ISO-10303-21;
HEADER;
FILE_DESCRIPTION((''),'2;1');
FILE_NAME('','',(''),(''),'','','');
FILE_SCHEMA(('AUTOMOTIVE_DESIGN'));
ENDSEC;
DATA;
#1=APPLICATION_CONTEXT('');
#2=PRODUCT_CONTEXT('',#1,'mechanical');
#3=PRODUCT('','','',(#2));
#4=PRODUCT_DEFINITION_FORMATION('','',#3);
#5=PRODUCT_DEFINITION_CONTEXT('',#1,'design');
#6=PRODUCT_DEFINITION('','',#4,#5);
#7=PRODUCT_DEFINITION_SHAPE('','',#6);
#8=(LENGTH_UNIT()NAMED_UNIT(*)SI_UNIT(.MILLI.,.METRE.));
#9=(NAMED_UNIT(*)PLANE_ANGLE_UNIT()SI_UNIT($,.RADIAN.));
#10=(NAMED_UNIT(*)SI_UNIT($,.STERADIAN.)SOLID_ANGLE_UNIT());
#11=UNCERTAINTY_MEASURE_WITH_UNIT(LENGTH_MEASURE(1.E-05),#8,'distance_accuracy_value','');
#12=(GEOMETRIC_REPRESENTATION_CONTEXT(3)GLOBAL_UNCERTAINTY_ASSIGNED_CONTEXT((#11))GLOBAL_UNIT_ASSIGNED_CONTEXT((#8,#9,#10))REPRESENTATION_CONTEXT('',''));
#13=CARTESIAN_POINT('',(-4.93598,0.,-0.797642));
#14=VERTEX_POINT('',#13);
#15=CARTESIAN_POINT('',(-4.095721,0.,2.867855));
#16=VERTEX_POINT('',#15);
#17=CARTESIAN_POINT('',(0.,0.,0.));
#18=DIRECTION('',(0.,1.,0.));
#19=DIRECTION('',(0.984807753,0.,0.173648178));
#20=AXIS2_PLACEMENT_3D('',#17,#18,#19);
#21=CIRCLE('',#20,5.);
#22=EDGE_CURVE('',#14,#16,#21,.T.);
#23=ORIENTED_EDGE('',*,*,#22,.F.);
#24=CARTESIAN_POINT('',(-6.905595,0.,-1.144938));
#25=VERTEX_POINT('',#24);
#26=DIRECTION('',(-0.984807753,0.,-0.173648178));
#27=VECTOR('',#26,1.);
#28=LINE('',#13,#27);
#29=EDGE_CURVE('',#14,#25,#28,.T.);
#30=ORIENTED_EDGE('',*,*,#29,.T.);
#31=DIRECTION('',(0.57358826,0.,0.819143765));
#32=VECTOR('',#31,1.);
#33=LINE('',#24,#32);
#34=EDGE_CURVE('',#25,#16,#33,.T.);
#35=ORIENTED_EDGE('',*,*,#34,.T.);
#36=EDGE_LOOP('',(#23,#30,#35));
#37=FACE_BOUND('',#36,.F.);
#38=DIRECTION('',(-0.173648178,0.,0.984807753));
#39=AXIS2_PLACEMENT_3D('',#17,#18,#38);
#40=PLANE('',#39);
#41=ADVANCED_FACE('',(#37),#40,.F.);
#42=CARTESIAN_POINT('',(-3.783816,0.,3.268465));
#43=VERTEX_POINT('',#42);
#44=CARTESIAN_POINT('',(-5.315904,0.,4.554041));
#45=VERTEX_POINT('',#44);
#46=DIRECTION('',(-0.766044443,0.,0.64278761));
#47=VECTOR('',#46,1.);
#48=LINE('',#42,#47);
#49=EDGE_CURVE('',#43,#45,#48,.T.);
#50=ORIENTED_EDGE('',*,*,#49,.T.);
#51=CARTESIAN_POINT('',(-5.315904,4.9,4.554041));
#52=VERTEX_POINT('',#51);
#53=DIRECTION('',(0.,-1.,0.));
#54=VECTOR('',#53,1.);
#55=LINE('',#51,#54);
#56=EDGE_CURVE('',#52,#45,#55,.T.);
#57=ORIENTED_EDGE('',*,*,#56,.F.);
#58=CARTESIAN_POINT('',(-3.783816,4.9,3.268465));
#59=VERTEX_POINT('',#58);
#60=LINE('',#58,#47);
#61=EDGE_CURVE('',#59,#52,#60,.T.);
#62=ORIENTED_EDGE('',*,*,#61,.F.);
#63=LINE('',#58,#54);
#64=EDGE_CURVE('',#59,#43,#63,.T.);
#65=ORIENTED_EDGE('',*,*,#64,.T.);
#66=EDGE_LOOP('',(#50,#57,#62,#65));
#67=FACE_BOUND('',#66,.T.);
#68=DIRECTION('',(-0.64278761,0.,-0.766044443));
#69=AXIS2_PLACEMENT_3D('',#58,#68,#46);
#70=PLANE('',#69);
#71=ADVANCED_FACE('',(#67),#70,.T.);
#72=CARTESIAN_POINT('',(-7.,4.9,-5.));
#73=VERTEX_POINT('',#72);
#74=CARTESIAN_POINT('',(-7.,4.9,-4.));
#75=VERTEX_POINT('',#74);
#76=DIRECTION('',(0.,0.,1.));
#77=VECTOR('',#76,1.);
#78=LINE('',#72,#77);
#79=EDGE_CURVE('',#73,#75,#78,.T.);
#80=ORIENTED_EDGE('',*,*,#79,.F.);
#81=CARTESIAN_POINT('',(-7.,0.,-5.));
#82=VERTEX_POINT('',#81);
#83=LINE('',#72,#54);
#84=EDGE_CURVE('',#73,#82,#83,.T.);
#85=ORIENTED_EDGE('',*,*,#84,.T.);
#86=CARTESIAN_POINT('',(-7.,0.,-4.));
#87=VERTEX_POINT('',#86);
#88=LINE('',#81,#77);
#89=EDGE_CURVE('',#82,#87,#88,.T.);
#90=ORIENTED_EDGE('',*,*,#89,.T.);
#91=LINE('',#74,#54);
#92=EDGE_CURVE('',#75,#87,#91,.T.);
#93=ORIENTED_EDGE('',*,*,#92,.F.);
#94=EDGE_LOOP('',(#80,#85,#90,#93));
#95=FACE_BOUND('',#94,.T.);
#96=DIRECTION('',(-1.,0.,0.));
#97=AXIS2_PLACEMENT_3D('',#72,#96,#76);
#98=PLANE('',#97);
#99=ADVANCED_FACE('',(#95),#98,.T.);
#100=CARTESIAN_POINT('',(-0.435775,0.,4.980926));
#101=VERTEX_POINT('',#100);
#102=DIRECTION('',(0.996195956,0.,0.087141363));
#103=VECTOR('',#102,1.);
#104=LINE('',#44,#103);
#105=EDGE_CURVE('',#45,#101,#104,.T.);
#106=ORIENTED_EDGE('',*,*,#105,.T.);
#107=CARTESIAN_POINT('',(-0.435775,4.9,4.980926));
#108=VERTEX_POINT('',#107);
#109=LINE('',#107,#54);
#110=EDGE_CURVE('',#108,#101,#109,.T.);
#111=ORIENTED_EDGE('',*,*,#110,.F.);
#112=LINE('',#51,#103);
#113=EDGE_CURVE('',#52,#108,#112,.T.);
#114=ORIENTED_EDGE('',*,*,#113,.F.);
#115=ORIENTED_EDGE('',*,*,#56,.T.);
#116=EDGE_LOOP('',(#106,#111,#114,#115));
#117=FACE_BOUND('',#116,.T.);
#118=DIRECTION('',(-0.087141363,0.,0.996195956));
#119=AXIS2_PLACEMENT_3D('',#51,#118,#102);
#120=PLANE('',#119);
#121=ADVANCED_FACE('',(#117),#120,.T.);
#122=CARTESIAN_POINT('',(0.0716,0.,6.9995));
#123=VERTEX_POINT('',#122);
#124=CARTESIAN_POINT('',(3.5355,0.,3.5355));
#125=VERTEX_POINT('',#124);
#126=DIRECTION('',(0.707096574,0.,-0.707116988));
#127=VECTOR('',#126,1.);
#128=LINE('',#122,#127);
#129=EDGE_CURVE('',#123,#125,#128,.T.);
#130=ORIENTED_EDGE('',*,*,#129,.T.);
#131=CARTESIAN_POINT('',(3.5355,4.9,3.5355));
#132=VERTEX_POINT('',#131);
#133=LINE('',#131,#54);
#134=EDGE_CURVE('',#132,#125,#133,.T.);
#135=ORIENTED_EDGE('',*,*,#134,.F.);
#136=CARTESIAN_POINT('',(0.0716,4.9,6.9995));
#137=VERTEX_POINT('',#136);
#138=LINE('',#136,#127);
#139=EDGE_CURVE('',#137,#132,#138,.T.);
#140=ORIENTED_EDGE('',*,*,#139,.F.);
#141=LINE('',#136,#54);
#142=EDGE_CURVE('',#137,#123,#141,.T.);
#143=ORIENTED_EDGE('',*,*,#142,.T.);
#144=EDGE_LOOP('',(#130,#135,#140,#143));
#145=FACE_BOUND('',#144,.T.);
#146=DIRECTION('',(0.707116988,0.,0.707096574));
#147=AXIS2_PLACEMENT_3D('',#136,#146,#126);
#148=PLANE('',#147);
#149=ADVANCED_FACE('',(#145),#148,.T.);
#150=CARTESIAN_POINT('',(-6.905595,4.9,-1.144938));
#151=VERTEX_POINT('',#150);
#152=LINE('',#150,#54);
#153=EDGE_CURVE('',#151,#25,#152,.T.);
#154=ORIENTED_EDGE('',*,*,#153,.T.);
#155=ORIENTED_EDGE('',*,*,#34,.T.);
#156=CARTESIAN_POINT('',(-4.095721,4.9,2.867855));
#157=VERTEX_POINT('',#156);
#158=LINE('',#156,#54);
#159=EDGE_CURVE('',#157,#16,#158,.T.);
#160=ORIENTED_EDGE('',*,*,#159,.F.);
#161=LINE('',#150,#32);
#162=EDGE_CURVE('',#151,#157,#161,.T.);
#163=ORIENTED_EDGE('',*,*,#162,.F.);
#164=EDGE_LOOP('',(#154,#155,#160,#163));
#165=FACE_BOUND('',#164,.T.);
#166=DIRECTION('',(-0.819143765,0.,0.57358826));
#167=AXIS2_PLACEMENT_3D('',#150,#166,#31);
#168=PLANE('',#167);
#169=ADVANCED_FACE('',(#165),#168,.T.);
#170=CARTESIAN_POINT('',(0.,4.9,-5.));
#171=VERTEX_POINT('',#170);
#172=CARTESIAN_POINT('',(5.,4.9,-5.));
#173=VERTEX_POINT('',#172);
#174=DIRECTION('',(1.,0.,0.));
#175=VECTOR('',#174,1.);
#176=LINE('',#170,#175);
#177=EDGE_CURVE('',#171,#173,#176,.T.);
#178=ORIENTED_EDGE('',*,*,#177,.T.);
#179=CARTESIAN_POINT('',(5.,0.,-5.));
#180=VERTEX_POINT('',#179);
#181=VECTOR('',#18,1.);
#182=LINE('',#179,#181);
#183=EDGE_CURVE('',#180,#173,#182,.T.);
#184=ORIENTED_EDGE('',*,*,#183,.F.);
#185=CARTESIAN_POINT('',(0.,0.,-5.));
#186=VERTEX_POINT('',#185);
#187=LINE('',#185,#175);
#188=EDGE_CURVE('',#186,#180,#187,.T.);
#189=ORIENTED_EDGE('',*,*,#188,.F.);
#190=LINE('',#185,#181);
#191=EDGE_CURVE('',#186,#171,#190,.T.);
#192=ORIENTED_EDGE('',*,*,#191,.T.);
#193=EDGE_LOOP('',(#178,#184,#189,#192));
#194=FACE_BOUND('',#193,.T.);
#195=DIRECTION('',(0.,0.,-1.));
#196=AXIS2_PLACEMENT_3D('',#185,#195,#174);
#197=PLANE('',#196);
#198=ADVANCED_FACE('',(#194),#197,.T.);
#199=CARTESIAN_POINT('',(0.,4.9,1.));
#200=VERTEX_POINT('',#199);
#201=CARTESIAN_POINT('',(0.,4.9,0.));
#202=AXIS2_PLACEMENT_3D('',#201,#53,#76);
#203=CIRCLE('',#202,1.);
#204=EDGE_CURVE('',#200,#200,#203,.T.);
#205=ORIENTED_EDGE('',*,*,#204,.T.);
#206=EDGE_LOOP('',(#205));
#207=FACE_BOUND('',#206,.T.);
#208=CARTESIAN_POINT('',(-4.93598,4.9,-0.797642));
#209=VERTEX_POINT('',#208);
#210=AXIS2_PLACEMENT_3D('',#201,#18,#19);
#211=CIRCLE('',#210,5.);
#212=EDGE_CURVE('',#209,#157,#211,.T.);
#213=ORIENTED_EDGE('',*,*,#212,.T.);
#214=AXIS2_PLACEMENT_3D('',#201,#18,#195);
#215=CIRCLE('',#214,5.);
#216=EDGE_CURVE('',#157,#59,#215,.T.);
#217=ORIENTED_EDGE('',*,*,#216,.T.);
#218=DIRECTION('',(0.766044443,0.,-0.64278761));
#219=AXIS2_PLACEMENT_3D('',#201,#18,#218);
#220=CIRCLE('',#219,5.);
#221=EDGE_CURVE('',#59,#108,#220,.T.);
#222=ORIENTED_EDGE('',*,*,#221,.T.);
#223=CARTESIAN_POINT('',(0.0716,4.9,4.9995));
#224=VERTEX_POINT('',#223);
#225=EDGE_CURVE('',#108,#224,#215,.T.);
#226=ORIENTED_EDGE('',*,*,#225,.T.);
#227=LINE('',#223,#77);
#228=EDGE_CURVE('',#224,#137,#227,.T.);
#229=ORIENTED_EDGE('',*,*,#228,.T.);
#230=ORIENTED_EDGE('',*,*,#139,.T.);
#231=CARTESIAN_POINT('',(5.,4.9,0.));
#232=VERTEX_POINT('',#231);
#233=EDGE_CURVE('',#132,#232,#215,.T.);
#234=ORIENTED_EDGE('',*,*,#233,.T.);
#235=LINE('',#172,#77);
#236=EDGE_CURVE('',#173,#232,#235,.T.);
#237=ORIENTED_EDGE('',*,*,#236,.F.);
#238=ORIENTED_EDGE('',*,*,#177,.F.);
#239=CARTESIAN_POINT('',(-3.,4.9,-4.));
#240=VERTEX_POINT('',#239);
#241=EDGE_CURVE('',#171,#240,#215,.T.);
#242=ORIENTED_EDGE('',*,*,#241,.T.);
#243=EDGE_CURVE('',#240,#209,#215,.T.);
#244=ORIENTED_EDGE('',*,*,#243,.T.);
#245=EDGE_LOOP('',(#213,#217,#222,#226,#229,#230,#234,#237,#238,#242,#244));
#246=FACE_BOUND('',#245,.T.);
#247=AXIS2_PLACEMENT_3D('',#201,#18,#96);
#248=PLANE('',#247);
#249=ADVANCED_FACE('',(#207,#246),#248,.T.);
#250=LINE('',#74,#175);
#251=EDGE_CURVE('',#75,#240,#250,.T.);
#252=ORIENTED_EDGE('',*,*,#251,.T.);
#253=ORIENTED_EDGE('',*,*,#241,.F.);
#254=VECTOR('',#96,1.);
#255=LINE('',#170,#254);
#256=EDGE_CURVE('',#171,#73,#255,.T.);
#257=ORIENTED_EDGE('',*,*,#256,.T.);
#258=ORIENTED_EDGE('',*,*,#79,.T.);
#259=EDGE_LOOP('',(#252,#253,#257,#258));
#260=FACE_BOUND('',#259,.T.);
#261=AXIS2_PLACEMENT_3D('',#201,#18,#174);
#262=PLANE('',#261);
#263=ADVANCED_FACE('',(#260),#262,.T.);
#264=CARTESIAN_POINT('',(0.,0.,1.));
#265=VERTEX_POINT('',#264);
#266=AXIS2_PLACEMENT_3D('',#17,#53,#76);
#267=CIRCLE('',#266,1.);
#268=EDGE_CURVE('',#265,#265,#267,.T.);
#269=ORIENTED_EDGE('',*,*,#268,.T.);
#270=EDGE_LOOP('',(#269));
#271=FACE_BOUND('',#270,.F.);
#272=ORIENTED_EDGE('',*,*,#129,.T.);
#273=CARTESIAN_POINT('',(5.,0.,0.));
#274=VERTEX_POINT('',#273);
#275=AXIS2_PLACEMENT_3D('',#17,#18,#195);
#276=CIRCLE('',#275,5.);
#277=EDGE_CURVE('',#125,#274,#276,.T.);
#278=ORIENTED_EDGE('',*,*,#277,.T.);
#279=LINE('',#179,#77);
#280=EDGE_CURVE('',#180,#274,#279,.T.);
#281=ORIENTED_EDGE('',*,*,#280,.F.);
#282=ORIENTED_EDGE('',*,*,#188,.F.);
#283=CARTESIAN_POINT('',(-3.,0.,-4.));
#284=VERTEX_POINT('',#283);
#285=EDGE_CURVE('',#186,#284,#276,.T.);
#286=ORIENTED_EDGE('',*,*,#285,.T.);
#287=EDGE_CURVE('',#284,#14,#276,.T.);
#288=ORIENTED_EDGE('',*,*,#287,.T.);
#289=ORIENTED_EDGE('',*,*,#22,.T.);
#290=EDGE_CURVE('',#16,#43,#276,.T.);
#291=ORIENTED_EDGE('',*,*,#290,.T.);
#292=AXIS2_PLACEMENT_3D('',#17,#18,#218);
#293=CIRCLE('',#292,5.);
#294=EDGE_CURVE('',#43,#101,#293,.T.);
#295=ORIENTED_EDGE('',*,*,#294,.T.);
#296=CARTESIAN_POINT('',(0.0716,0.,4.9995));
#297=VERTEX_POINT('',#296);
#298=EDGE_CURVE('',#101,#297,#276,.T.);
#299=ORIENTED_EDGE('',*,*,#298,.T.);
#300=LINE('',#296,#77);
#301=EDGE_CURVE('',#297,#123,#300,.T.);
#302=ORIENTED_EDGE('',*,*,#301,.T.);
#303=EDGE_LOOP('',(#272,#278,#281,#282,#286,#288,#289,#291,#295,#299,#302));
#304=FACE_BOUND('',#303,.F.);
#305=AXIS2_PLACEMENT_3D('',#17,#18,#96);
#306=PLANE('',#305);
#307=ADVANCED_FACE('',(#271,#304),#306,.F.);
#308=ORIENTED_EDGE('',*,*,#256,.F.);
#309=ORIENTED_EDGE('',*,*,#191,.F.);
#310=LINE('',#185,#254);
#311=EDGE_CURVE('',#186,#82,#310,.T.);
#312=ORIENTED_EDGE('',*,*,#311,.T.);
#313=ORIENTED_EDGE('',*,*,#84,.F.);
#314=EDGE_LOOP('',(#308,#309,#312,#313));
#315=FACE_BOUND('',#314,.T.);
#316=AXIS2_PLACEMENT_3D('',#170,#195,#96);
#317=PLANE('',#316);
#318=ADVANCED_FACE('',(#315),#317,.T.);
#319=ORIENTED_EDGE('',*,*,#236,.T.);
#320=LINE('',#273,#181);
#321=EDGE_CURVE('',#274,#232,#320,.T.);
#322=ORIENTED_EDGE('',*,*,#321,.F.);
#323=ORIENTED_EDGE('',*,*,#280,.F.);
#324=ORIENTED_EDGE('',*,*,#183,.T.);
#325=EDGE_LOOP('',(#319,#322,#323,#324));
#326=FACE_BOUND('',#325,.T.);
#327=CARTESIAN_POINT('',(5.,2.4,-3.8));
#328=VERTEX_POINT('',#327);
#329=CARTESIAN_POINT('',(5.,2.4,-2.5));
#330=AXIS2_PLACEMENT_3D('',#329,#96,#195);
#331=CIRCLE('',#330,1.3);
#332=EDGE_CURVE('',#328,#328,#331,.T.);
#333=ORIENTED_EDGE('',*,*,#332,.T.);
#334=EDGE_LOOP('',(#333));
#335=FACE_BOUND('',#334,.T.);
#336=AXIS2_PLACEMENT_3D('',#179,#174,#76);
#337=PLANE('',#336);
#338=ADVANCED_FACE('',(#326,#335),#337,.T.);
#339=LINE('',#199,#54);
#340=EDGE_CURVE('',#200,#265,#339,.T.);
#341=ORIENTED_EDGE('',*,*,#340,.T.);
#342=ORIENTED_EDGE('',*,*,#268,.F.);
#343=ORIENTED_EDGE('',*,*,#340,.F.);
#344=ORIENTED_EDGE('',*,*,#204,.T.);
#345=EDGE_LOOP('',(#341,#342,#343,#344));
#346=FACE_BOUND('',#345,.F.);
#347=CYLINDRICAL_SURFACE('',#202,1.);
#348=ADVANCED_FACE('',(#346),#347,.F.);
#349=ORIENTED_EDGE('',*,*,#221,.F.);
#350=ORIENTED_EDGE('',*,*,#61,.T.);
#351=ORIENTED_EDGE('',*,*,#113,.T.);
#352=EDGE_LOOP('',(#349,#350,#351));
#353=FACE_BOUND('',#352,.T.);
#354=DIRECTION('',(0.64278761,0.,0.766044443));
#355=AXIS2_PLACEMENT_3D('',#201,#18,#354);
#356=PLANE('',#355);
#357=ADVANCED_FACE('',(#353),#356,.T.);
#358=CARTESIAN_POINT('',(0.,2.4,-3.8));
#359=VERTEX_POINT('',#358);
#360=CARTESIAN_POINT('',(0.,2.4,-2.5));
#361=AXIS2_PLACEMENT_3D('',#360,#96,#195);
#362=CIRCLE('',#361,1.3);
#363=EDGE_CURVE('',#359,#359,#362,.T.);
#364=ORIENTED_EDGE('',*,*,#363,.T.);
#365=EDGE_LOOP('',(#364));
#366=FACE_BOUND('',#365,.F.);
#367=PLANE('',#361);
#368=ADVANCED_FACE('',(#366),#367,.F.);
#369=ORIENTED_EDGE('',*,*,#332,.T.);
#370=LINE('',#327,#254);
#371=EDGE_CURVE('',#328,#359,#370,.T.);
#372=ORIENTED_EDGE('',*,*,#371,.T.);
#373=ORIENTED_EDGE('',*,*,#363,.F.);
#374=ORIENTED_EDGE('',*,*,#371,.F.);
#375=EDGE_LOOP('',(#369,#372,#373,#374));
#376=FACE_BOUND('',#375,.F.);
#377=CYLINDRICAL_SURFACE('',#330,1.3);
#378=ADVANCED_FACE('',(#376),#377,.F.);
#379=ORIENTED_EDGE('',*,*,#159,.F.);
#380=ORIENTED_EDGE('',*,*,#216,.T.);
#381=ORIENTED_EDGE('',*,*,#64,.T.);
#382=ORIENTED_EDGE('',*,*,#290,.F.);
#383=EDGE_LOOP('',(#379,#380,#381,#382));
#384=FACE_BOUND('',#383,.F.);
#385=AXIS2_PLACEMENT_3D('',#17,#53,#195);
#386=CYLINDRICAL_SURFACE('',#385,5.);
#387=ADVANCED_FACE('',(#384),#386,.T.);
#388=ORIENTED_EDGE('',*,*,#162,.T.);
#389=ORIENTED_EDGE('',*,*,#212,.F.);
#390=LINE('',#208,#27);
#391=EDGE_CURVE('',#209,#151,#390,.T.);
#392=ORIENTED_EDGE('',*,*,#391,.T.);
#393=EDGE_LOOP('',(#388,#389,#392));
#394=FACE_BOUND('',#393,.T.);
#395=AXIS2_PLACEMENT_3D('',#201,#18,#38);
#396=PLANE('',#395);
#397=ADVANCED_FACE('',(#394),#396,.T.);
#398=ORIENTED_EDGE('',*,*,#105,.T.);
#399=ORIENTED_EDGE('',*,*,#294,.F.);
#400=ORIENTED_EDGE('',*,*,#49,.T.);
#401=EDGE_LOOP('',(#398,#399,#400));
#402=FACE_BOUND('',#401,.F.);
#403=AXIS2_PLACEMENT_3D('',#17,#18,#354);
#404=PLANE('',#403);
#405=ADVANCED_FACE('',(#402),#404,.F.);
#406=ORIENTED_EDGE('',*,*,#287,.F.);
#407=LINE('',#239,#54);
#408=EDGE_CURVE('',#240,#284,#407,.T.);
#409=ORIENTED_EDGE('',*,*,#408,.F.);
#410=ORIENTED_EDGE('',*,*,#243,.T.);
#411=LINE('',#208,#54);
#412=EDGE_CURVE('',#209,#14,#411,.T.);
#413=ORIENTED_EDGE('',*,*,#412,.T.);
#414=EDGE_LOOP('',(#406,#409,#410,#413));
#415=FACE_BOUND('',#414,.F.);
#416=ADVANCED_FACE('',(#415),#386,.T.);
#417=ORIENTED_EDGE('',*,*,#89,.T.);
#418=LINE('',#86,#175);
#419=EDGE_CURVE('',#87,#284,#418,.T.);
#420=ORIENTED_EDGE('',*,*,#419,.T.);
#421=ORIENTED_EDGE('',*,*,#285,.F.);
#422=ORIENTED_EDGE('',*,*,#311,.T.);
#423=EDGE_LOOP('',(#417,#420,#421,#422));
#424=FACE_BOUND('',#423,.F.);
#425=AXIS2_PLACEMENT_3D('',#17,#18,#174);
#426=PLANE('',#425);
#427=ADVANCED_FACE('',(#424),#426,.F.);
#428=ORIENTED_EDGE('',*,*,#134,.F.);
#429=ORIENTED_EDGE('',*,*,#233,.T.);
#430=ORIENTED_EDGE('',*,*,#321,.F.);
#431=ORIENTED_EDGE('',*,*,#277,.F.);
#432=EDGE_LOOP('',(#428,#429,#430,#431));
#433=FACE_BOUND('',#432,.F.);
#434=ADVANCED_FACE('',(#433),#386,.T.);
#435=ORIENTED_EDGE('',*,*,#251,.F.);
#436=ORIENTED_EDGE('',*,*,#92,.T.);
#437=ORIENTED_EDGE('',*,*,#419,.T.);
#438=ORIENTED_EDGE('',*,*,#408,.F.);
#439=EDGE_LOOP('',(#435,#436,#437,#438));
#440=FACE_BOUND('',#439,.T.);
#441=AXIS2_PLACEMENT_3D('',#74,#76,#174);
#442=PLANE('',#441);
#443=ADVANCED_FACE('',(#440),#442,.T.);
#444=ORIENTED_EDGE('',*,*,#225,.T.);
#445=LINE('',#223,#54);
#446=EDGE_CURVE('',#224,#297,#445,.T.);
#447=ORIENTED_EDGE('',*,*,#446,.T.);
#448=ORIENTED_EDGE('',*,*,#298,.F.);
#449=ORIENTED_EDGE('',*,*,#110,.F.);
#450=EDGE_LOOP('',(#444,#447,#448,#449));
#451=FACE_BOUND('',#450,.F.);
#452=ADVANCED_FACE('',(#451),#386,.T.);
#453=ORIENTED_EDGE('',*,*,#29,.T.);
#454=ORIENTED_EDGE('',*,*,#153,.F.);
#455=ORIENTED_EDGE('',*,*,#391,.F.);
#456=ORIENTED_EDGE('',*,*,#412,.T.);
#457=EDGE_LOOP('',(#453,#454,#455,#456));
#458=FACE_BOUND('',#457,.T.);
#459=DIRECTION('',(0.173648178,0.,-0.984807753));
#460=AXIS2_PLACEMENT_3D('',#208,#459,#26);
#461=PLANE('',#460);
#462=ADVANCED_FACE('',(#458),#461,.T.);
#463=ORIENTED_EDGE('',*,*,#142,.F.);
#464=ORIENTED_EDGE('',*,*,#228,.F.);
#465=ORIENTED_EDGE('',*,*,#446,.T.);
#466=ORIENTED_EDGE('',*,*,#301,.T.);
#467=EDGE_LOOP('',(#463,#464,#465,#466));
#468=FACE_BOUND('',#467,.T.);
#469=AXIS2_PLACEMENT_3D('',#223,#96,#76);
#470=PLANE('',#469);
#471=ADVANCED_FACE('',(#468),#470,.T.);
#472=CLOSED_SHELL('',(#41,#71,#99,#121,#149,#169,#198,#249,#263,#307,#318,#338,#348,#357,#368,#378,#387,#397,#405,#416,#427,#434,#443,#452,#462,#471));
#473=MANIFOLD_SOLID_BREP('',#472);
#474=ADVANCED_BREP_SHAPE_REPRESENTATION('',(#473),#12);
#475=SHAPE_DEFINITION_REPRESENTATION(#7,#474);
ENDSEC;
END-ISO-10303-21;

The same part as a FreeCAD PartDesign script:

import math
import FreeCAD as App
import Part
import Sketcher
from FreeCAD import Vector
Q = App.Units.Quantity

doc = App.newDocument("Part")
body = doc.addObject("PartDesign::Body", "Body")

sketch1 = body.newObject("Sketcher::SketchObject", "Sketch")
sketch1.AttachmentSupport = (doc.getObject("XZ_Plane"), [""])
sketch1.MapMode = "FlatFace"
sketch1.addGeometry([
    Part.LineSegment(Vector(5, -5, 0), Vector(0, -5, 0)),
    Part.ArcOfCircle(Part.Circle(Vector(0, 0, 0), Vector(0, 0, 1), 5), math.radians(0), math.radians(270)),
    Part.LineSegment(Vector(5, 0, 0), Vector(5, -5, 0)),
], False)
sketch1.addConstraint([
    Sketcher.Constraint("Tangent", 0, 2, 1, 2),
    Sketcher.Constraint("Tangent", 1, 1, 2, 1),
    Sketcher.Constraint("Coincident", 2, 2, 0, 1),
    Sketcher.Constraint("Horizontal", 0),
    Sketcher.Constraint("Vertical", 2),
    Sketcher.Constraint("Coincident", 1, 3, -1, 1),
    Sketcher.Constraint("Radius", 1, 5.0),
])
pad1 = body.newObject("PartDesign::Pad", "Pad")
pad1.Profile = sketch1
pad1.Length = 4.9
pad1.Reversed = True

sketch2 = body.newObject("Sketcher::SketchObject", "Sketch001")
sketch2.AttachmentSupport = (doc.getObject("XZ_Plane"), [""])
sketch2.MapMode = "FlatFace"
sketch2.AttachmentOffset = App.Placement(Vector(0, 0, -4.9), App.Rotation())
sketch2.addGeometry([
    Part.ArcOfCircle(Part.Circle(Vector(0, 0, 0), Vector(0, 0, 1), 5), math.radians(45), math.radians(89.179498)),
    Part.LineSegment(Vector(0.0716, 4.9995, 0), Vector(0.0716, 6.9995, 0)),
    Part.LineSegment(Vector(0.0716, 6.9995, 0), Vector(3.5355, 3.5355, 0)),
], False)
sketch2.addConstraint([
    Sketcher.Constraint("Coincident", 0, 2, 1, 1),
    Sketcher.Constraint("Coincident", 1, 2, 2, 1),
    Sketcher.Constraint("Tangent", 2, 2, 0, 1),
    Sketcher.Constraint("Vertical", 1),
    Sketcher.Constraint("Coincident", 0, 3, -1, 1),
    Sketcher.Constraint("DistanceY", 1, 1, 1, 2, 2.0),
    Sketcher.Constraint("Radius", 0, 5.0),
    Sketcher.Constraint("Angle", 2, Q("-45.0008 deg")),
])
pad2 = body.newObject("PartDesign::Pad", "Pad001")
pad2.Profile = sketch2
pad2.Length = 4.9
doc.recompute()

polarpattern = body.newObject("PartDesign::PolarPattern", "PolarPattern")
polarpattern.Originals = [pad2]
polarpattern.Axis = (doc.getObject("Y_Axis"), [""])
polarpattern.Angle = 100
polarpattern.Occurrences = 3
polarpattern.Reversed = True
body.Tip = polarpattern

sketch3 = body.newObject("Sketcher::SketchObject", "Sketch002")
sketch3.AttachmentSupport = (doc.getObject("XZ_Plane"), [""])
sketch3.MapMode = "FlatFace"
sketch3.AttachmentOffset = App.Placement(Vector(0, 0, -4.9), App.Rotation())
sketch3.addGeometry(Part.Circle(Vector(0, 0, 0), Vector(0, 0, 1), 1), False)
sketch3.addConstraint([
    Sketcher.Constraint("Coincident", 0, 3, -1, 1),
    Sketcher.Constraint("Diameter", 0, 2.0),
])
doc.recompute()
hole = body.newObject("PartDesign::Hole", "Hole")
hole.Profile = sketch3
hole.ThreadType = "None"
hole.Diameter = 2
hole.DepthType = "ThroughAll"
hole.Reversed = True

sketch4 = body.newObject("Sketcher::SketchObject", "Sketch003")
sketch4.AttachmentSupport = (doc.getObject("YZ_Plane"), [""])
sketch4.MapMode = "FlatFace"
sketch4.AttachmentOffset = App.Placement(Vector(0, 0, 5), App.Rotation())
sketch4.addGeometry(Part.Circle(Vector(2.4, -2.5, 0), Vector(0, 0, 1), 1.3), False)
sketch4.addConstraint([
    Sketcher.Constraint("Diameter", 0, 2.6),
    Sketcher.Constraint("DistanceX", -1, 1, 0, 3, 2.4),
    Sketcher.Constraint("DistanceY", 0, 3, -1, 1, 2.5),
])
doc.recompute()
hole2 = body.newObject("PartDesign::Hole", "Hole001")
hole2.Profile = sketch4
hole2.ThreadType = "None"
hole2.Diameter = 2.6
hole2.DepthType = "Dimension"
hole2.Depth = 5
hole2.DrillPoint = "Flat"

sketch5 = body.newObject("Sketcher::SketchObject", "Sketch004")
sketch5.AttachmentSupport = (doc.getObject("XZ_Plane"), [""])
sketch5.MapMode = "FlatFace"
sketch5.AttachmentOffset = App.Placement(Vector(0, 0, -4.9), App.Rotation())
sketch5.addGeometry([
    Part.ArcOfCircle(Part.Circle(Vector(0, 0, 0), Vector(0, 0, 1), 5), math.radians(-126.869898), math.radians(-90)),
    Part.LineSegment(Vector(0, -5, 0), Vector(-7, -5, 0)),
    Part.LineSegment(Vector(-7, -5, 0), Vector(-7, -4, 0)),
    Part.LineSegment(Vector(-7, -4, 0), Vector(-3, -4, 0)),
], False)
sketch5.addConstraint([
    Sketcher.Constraint("Tangent", 0, 2, 1, 1),
    Sketcher.Constraint("Coincident", 1, 2, 2, 1),
    Sketcher.Constraint("Coincident", 2, 2, 3, 1),
    Sketcher.Constraint("Coincident", 3, 2, 0, 1),
    Sketcher.Constraint("Horizontal", 1),
    Sketcher.Constraint("Vertical", 2),
    Sketcher.Constraint("Horizontal", 3),
    Sketcher.Constraint("Coincident", 0, 3, -1, 1),
    Sketcher.Constraint("DistanceX", 1, 2, 1, 1, 7.0),
    Sketcher.Constraint("DistanceY", 2, 1, 2, 2, 1.0),
    Sketcher.Constraint("Radius", 0, 5.0),
])
pad3 = body.newObject("PartDesign::Pad", "Pad002")
pad3.Profile = sketch5
pad3.Length = 4.9

doc.recompute()
